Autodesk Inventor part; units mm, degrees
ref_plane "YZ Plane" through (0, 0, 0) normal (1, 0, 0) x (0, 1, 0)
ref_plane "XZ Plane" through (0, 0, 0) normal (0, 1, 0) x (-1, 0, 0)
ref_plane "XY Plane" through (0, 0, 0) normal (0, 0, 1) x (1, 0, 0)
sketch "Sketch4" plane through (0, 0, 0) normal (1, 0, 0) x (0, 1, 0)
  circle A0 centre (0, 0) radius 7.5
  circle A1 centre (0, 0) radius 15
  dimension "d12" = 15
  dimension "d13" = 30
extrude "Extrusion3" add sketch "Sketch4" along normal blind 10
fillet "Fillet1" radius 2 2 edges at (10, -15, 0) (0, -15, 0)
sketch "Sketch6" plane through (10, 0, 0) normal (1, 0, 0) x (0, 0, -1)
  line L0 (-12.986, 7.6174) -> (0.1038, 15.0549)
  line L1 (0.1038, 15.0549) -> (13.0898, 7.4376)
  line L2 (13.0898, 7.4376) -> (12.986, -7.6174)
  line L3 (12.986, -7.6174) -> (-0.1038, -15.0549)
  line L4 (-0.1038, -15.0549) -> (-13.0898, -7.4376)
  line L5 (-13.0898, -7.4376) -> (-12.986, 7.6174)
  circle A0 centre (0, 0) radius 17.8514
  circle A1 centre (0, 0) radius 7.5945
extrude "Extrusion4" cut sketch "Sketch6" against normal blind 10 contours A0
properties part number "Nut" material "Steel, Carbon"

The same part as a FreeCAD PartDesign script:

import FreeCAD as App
import Part
import Sketcher

V = App.Vector
Q = App.Units.Quantity


def edges_at(feature, points):
    """Names of the edges that pass closest to the given points."""
    edges = feature.Shape.Edges
    near = lambda p: min(range(len(edges)), key=lambda i: edges[i].distToShape(Part.Vertex(*p))[0])
    return sorted({f"Edge{near(p) + 1}" for p in points})

doc = App.newDocument("Part")
body = doc.addObject("PartDesign::Body", "Body")

# Sketch on YZ plane
sketch1 = body.newObject("Sketcher::SketchObject", "Sketch")
sketch1.AttachmentSupport = (doc.getObject("YZ_Plane"), [""])
sketch1.MapMode = "FlatFace"
sketch1.addGeometry(Part.Circle(V(0, 0, 0), V(0, 0, 1), 15), False)
sketch1.addGeometry(Part.Circle(V(0, 0, 0), V(0, 0, 1), 8), False)
sketch1.addConstraint(Sketcher.Constraint("Coincident", 0, 3, -1, 1))
sketch1.addConstraint(Sketcher.Constraint("Coincident", 1, 3, -1, 1))
sketch1.addConstraint(Sketcher.Constraint("Diameter", 0, Q("30 mm")))
sketch1.addConstraint(Sketcher.Constraint("Diameter", 1, Q("15 mm")))
pad1 = body.newObject("PartDesign::Pad", "Pad")
pad1.Profile = sketch1
pad1.Length = 10
doc.recompute()

fillet = body.newObject("PartDesign::Fillet", "Fillet")
fillet.Base = (pad1, edges_at(pad1, [(10, -15, 0), (0, -15, 0)]))
fillet.Radius = 2

# Sketch on YZ plane
sketch2 = body.newObject("Sketcher::SketchObject", "Sketch001")
sketch2.AttachmentSupport = (doc.getObject("YZ_Plane"), [""])
sketch2.MapMode = "FlatFace"
sketch2.AttachmentOffset = App.Placement(V(0, 0, 10), App.Rotation())
sketch2.addGeometry(Part.Circle(V(0, 0, 0), V(0, 0, 1), 18), False)
sketch2.addGeometry(Part.LineSegment(V(-7, 13, 0), V(8, 13, 0)), False)
sketch2.addGeometry(Part.LineSegment(V(8, 13, 0), V(15, 0, 0)), False)
sketch2.addGeometry(Part.LineSegment(V(15, 0, 0), V(7, -13, 0)), False)
sketch2.addGeometry(Part.LineSegment(V(7, -13, 0), V(-8, -13, 0)), False)
sketch2.addGeometry(Part.LineSegment(V(-8, -13, 0), V(-15, 0, 0)), False)
sketch2.addGeometry(Part.LineSegment(V(-15, 0, 0), V(-7, 13, 0)), False)
sketch2.addConstraint(Sketcher.Constraint("Coincident", 1, 2, 2, 1))
sketch2.addConstraint(Sketcher.Constraint("Coincident", 2, 2, 3, 1))
sketch2.addConstraint(Sketcher.Constraint("Coincident", 3, 2, 4, 1))
sketch2.addConstraint(Sketcher.Constraint("Coincident", 4, 2, 5, 1))
sketch2.addConstraint(Sketcher.Constraint("Coincident", 5, 2, 6, 1))
sketch2.addConstraint(Sketcher.Constraint("Coincident", 6, 2, 1, 1))
sketch2.addConstraint(Sketcher.Constraint("Coincident", 0, 3, -1, 1))
sketch2.addConstraint(Sketcher.Constraint("Symmetric", 1, 2, 4, 2, -1, 1))
sketch2.addConstraint(Sketcher.Constraint("Symmetric", 2, 2, 5, 2, -1, 1))
sketch2.addConstraint(Sketcher.Constraint("Symmetric", 3, 2, 6, 2, -1, 1))
sketch2.addConstraint(Sketcher.Constraint("Equal", 1, 2))
sketch2.addConstraint(Sketcher.Constraint("Equal", 2, 3))
sketch2.addConstraint(Sketcher.Constraint("Diameter", 0, Q("35.7028 mm")))
sketch2.addConstraint(Sketcher.Constraint("DistanceY", -1, 1, 1, 2, Q("12.986 mm")))
sketch2.addConstraint(Sketcher.Constraint("DistanceX", -1, 1, 2, 2, Q("15.055 mm")))
sketch2.addConstraint(Sketcher.Constraint("DistanceY", 3, 2, 2, 2, Q("12.986 mm")))
sketch2.addConstraint(Sketcher.Constraint("DistanceX", 4, 2, 3, 2, Q("15.055 mm")))
pocket1 = body.newObject("PartDesign::Pocket", "Pocket")
pocket1.Profile = sketch2
pocket1.Length = 10

doc.recompute()
